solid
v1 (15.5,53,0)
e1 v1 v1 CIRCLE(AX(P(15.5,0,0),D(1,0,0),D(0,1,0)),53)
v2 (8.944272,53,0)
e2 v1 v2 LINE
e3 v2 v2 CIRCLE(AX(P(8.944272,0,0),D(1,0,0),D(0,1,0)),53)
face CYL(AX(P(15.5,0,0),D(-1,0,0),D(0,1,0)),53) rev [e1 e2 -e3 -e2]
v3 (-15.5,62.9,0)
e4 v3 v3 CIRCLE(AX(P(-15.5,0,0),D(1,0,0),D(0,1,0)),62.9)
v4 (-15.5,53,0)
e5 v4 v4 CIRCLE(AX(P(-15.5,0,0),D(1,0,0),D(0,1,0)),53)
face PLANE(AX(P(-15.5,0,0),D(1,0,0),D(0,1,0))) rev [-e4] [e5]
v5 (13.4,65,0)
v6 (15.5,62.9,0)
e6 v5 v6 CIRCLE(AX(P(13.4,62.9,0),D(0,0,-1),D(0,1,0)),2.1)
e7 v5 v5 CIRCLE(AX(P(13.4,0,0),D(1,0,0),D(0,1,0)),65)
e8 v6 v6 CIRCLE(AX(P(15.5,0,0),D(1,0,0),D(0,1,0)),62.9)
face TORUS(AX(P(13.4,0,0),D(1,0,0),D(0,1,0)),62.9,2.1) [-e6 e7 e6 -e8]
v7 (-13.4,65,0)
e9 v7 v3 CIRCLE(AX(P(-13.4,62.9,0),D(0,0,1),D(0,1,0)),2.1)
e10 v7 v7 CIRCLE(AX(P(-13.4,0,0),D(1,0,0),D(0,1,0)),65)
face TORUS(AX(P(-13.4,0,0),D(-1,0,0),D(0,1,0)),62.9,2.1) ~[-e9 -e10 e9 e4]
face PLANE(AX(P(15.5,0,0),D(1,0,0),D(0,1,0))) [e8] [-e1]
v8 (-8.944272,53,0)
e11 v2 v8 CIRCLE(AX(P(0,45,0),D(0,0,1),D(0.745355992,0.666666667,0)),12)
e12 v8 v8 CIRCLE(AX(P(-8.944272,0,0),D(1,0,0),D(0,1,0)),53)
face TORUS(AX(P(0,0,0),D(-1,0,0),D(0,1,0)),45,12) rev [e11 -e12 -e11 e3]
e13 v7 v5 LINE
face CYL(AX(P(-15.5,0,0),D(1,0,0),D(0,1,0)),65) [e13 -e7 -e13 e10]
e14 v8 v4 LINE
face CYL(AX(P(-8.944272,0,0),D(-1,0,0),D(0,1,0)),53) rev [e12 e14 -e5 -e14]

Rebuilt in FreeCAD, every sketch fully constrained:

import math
import FreeCAD as App
import Part
import Sketcher

V = App.Vector


def edges_at(feature, points):
    """Names of the edges that pass closest to the given points."""
    edges = feature.Shape.Edges
    near = lambda p: min(range(len(edges)), key=lambda i: edges[i].distToShape(Part.Vertex(*p))[0])
    return sorted({f"Edge{near(p) + 1}" for p in points})

doc = App.newDocument("Part")
body = doc.addObject("PartDesign::Body", "Body")

sketch1 = doc.addObject("Sketcher::SketchObject", "Sketch")
body.addObject(sketch1)
sketch1.AttachmentSupport = (doc.XY_Plane, [""])
sketch1.MapMode = "FlatFace"
sketch1.addGeometry([
    Part.LineSegment(V(16, 65, 0), V(-16, 65, 0)),
    Part.LineSegment(V(-16, 65, 0), V(-16, 53, 0)),
    Part.LineSegment(V(-16, 53, 0), V(-9, 53, 0)),
    Part.ArcOfCircle(Part.Circle(V(0, 45, 0), V(0, 0, 1), 12), math.radians(42), math.radians(138)),
    Part.LineSegment(V(9, 53, 0), V(16, 53, 0)),
    Part.LineSegment(V(16, 53, 0), V(16, 65, 0)),
], False)
sketch1.addConstraint([
    Sketcher.Constraint("Coincident", 0, 2, 1, 1),
    Sketcher.Constraint("Coincident", 1, 2, 2, 1),
    Sketcher.Constraint("Coincident", 2, 2, 3, 2),
    Sketcher.Constraint("Coincident", 3, 1, 4, 1),
    Sketcher.Constraint("Coincident", 4, 2, 5, 1),
    Sketcher.Constraint("Coincident", 5, 2, 0, 1),
    Sketcher.Constraint("Horizontal", 0),
    Sketcher.Constraint("Vertical", 1),
    Sketcher.Constraint("Horizontal", 2),
    Sketcher.Constraint("Horizontal", 4),
    Sketcher.Constraint("Vertical", 5),
    Sketcher.Constraint("Symmetric", 2, 2, 3, 1, -2),
    Sketcher.Constraint("Equal", 2, 4),
    Sketcher.Constraint("Radius", 3, 12.0),
    Sketcher.Constraint("DistanceX", 0, 2, 0, 1, 31.0),
    Sketcher.Constraint("DistanceY", 1, 2, 1, 1, 12.0),
    Sketcher.Constraint("DistanceY", -1, 1, 3, 3, 45.0),
    Sketcher.Constraint("DistanceY", -1, 1, 0, 2, 65.0),
])
revolution = doc.addObject("PartDesign::Revolution", "Revolution")
body.addObject(revolution)
revolution.Profile = sketch1
revolution.ReferenceAxis = (sketch1, ["H_Axis"])
revolution.Angle = 360
doc.recompute()

fillet = doc.addObject("PartDesign::Fillet", "Fillet")
body.addObject(fillet)
fillet.Base = (revolution, edges_at(revolution, [(-15.5, -65, 0), (15.5, -65, 0)]))
fillet.Radius = 2.1

doc.recompute()
